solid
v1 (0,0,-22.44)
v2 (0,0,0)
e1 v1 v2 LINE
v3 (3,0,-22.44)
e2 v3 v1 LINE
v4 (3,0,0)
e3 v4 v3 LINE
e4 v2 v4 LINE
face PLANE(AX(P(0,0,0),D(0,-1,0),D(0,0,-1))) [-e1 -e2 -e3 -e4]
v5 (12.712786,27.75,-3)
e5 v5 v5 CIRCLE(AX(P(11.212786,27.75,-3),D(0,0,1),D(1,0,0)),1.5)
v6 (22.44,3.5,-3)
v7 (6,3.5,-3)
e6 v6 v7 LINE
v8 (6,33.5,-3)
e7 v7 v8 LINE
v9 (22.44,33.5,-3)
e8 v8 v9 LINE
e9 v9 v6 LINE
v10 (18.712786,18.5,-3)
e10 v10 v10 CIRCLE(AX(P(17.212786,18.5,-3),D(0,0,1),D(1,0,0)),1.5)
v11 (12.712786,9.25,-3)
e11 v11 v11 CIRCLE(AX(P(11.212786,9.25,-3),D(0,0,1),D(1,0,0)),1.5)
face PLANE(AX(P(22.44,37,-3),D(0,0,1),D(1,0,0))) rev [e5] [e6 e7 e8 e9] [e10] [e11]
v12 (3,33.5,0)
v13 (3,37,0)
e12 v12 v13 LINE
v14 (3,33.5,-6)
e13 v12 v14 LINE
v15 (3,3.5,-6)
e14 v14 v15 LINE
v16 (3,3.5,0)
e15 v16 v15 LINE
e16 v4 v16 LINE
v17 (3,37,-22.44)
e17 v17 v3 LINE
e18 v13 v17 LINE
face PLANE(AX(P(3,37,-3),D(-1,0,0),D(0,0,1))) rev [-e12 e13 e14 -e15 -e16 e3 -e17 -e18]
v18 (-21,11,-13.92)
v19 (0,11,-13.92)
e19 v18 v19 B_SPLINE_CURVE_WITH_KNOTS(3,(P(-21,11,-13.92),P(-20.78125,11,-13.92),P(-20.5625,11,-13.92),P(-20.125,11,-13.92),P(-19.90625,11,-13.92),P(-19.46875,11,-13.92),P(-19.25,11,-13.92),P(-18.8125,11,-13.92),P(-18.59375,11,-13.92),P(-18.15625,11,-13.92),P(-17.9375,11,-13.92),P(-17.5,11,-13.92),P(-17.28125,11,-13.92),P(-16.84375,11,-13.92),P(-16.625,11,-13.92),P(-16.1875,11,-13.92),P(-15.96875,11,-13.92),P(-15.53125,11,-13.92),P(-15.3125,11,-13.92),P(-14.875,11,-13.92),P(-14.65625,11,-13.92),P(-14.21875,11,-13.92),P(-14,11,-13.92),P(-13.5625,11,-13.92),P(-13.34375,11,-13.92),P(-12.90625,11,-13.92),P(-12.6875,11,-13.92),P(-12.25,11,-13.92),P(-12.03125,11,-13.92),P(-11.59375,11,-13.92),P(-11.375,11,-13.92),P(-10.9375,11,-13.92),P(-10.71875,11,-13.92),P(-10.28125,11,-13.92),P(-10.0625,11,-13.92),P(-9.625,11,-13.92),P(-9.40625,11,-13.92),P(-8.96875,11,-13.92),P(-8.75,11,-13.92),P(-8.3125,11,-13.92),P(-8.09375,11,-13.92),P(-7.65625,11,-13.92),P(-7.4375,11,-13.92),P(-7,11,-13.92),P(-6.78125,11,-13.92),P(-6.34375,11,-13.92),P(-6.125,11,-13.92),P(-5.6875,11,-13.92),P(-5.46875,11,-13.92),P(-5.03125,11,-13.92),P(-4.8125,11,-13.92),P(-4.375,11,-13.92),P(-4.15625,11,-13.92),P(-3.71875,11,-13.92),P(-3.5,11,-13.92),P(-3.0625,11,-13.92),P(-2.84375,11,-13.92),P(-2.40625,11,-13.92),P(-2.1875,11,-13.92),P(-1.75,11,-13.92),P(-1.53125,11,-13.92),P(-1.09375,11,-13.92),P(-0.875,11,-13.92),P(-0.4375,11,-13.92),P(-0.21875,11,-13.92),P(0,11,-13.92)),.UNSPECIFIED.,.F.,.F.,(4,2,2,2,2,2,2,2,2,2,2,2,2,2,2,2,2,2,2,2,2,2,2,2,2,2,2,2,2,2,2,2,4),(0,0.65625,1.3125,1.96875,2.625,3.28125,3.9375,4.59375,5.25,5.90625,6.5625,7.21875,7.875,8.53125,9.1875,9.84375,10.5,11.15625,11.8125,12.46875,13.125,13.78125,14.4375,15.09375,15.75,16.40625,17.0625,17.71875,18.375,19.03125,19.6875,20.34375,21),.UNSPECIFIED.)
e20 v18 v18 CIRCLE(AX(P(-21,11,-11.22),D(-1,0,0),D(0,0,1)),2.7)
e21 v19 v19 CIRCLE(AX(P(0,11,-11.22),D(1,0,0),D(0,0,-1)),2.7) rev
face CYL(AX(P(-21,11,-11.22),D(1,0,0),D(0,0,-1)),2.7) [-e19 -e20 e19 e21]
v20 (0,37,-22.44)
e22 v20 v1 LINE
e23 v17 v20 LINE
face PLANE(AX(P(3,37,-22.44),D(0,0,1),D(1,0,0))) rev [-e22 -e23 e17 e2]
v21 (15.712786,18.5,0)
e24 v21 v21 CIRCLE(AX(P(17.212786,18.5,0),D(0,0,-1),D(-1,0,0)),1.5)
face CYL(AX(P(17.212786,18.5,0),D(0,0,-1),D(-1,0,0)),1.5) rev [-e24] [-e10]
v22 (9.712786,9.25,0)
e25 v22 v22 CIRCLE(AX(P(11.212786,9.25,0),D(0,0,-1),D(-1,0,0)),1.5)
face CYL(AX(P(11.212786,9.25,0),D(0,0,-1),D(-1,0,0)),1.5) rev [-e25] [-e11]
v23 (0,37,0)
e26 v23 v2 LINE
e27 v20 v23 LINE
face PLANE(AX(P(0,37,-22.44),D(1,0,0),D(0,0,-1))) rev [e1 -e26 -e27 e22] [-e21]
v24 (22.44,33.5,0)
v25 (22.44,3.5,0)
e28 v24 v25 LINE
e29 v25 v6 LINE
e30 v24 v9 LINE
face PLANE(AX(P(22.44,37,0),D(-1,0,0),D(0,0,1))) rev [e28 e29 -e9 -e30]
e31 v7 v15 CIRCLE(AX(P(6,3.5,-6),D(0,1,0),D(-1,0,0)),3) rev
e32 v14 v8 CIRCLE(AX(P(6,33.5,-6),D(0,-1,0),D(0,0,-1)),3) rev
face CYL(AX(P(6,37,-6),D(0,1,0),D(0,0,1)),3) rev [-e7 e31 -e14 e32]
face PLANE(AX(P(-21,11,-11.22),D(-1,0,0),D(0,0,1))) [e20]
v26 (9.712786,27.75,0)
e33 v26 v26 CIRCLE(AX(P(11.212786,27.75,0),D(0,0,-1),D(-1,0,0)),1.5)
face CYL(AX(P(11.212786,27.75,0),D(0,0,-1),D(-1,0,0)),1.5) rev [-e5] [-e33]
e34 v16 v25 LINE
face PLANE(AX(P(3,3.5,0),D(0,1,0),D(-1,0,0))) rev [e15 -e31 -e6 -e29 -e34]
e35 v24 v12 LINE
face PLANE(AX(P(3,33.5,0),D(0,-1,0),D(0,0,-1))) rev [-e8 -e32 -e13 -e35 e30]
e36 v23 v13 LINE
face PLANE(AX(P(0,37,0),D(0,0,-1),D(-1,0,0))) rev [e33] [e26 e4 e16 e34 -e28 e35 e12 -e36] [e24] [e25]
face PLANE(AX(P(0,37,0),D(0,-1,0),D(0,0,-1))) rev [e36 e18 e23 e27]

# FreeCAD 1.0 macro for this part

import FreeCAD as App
import Part
import Sketcher

V = App.Vector


def edges_at(feature, points):
    """Names of the edges that pass closest to the given points."""
    edges = feature.Shape.Edges
    near = lambda p: min(range(len(edges)), key=lambda i: edges[i].distToShape(Part.Vertex(*p))[0])
    return sorted({f"Edge{near(p) + 1}" for p in points})

doc = App.newDocument("Part")
body = doc.addObject("PartDesign::Body", "Body")

# Sketch on XZ plane
sketch1 = body.newObject("Sketcher::SketchObject", "Sketch")
sketch1.AttachmentSupport = (doc.getObject("XZ_Plane"), [""])
sketch1.MapMode = "FlatFace"
sketch1.addGeometry(Part.LineSegment(V(0, 0, 0), V(22.4, 0, 0)), False)
sketch1.addGeometry(Part.LineSegment(V(22.4, 0, 0), V(22.4, -3, 0)), False)
sketch1.addGeometry(Part.LineSegment(V(22.4, -3, 0), V(3, -3, 0)), False)
sketch1.addGeometry(Part.LineSegment(V(3, -3, 0), V(3, -22.4, 0)), False)
sketch1.addGeometry(Part.LineSegment(V(3, -22.4, 0), V(0, -22.4, 0)), False)
sketch1.addGeometry(Part.LineSegment(V(0, -22.4, 0), V(0, 0, 0)), False)
sketch1.addConstraint(Sketcher.Constraint("Coincident", 0, 2, 1, 1))
sketch1.addConstraint(Sketcher.Constraint("Coincident", 1, 2, 2, 1))
sketch1.addConstraint(Sketcher.Constraint("Coincident", 2, 2, 3, 1))
sketch1.addConstraint(Sketcher.Constraint("Coincident", 3, 2, 4, 1))
sketch1.addConstraint(Sketcher.Constraint("Coincident", 4, 2, 5, 1))
sketch1.addConstraint(Sketcher.Constraint("Coincident", 5, 2, 0, 1))
sketch1.addConstraint(Sketcher.Constraint("Horizontal", 0))
sketch1.addConstraint(Sketcher.Constraint("Vertical", 1))
sketch1.addConstraint(Sketcher.Constraint("Horizontal", 2))
sketch1.addConstraint(Sketcher.Constraint("Vertical", 3))
sketch1.addConstraint(Sketcher.Constraint("Horizontal", 4))
sketch1.addConstraint(Sketcher.Constraint("Vertical", 5))
sketch1.addConstraint(Sketcher.Constraint("Coincident", 5, 2, -1, 1))
sketch1.addConstraint(Sketcher.Constraint("Equal", 4, 1))
sketch1.addConstraint(Sketcher.Constraint("Equal", 2, 3))
sketch1.addConstraint(Sketcher.Constraint("DistanceX", 4, 2, 4, 1, 3.0))
sketch1.addConstraint(Sketcher.Constraint("DistanceX", 0, 1, 0, 2, 22.44))
pad1 = body.newObject("PartDesign::Pad", "Pad")
pad1.Profile = sketch1
pad1.Length = 37
pad1.Reversed = True
doc.recompute()

fillet = body.newObject("PartDesign::Fillet", "Fillet")
fillet.Base = (pad1, edges_at(pad1, [(3, 18.5, -3)]))
fillet.Radius = 3

# Sketch on XY plane
sketch2 = body.newObject("Sketcher::SketchObject", "Sketch001")
sketch2.AttachmentSupport = (doc.getObject("XY_Plane"), [""])
sketch2.MapMode = "FlatFace"
sketch2.AttachmentOffset = App.Placement(V(0, 0, -22.44), App.Rotation())
sketch2.addGeometry(Part.Circle(V(11.2, 27.8, 0), V(0, 0, 1), 1.5), False)
sketch2.addGeometry(Part.Circle(V(17.2, 18.5, 0), V(0, 0, 1), 1.5), False)
sketch2.addGeometry(Part.Circle(V(11.2, 9.2, 0), V(0, 0, 1), 1.5), False)
sketch2.addGeometry(Part.LineSegment(V(22.4, 3.5, 0), V(22.4, 0, 0)), False)
sketch2.addGeometry(Part.LineSegment(V(22.4, 0, 0), V(3, 0, 0)), False)
sketch2.addGeometry(Part.LineSegment(V(3, 0, 0), V(3, 3.5, 0)), False)
sketch2.addGeometry(Part.LineSegment(V(3, 3.5, 0), V(22.4, 3.5, 0)), False)
sketch2.addGeometry(Part.LineSegment(V(22.4, 37, 0), V(22.4, 33.5, 0)), False)
sketch2.addGeometry(Part.LineSegment(V(22.4, 33.5, 0), V(3, 33.5, 0)), False)
sketch2.addGeometry(Part.LineSegment(V(3, 33.5, 0), V(3, 37, 0)), False)
sketch2.addGeometry(Part.LineSegment(V(3, 37, 0), V(22.4, 37, 0)), False)
sketch2.addConstraint(Sketcher.Constraint("Coincident", 3, 2, 4, 1))
sketch2.addConstraint(Sketcher.Constraint("Coincident", 4, 2, 5, 1))
sketch2.addConstraint(Sketcher.Constraint("Coincident", 5, 2, 6, 1))
sketch2.addConstraint(Sketcher.Constraint("Coincident", 6, 2, 3, 1))
sketch2.addConstraint(Sketcher.Constraint("Coincident", 7, 2, 8, 1))
sketch2.addConstraint(Sketcher.Constraint("Coincident", 8, 2, 9, 1))
sketch2.addConstraint(Sketcher.Constraint("Coincident", 9, 2, 10, 1))
sketch2.addConstraint(Sketcher.Constraint("Coincident", 10, 2, 7, 1))
sketch2.addConstraint(Sketcher.Constraint("Vertical", 3))
sketch2.addConstraint(Sketcher.Constraint("Horizontal", 4))
sketch2.addConstraint(Sketcher.Constraint("Vertical", 5))
sketch2.addConstraint(Sketcher.Constraint("Horizontal", 6))
sketch2.addConstraint(Sketcher.Constraint("Vertical", 7))
sketch2.addConstraint(Sketcher.Constraint("Horizontal", 8))
sketch2.addConstraint(Sketcher.Constraint("Vertical", 9))
sketch2.addConstraint(Sketcher.Constraint("Horizontal", 10))
sketch2.addConstraint(Sketcher.Constraint("Equal", 0, 1))
sketch2.addConstraint(Sketcher.Constraint("Equal", 1, 2))
sketch2.addConstraint(Sketcher.Constraint("PointOnObject", 3, 2, -1))
sketch2.addConstraint(Sketcher.Constraint("Vertical", 0, 3, 2, 3))
sketch2.addConstraint(Sketcher.Constraint("Vertical", 6, 2, 7, 2))
sketch2.addConstraint(Sketcher.Constraint("Vertical", 5, 2, 8, 2))
sketch2.addConstraint(Sketcher.Constraint("Equal", 5, 7))
sketch2.addConstraint(Sketcher.Constraint("Diameter", 0, 3.0))
sketch2.addConstraint(Sketcher.Constraint("DistanceY", 3, 2, 3, 1, 3.5))
sketch2.addConstraint(Sketcher.Constraint("DistanceX", -1, 1, 4, 2, 3.0))
sketch2.addConstraint(Sketcher.Constraint("DistanceY", -1, 1, 9, 2, 37.0))
sketch2.addConstraint(Sketcher.Constraint("DistanceX", 0, 3, 1, 3, 6.0))
sketch2.addConstraint(Sketcher.Constraint("DistanceY", 5, 2, 1, 3, 15.0))
sketch2.addConstraint(Sketcher.Constraint("DistanceX", 4, 2, 4, 1, 19.44))
sketch2.addConstraint(Sketcher.Constraint("DistanceY", 2, 3, 0, 3, 18.5))
sketch2.addConstraint(Sketcher.Constraint("DistanceY", -1, 1, 0, 3, 27.75))
sketch2.addConstraint(Sketcher.Constraint("DistanceX", -1, 1, 0, 3, 11.212786))
pocket1 = body.newObject("PartDesign::Pocket", "Pocket")
pocket1.Profile = sketch2
pocket1.Type = "ThroughAll"
pocket1.Reversed = True

# Sketch on YZ plane
sketch3 = body.newObject("Sketcher::SketchObject", "Sketch002")
sketch3.AttachmentSupport = (doc.getObject("YZ_Plane"), [""])
sketch3.MapMode = "FlatFace"
sketch3.addGeometry(Part.Circle(V(11, -11.2, 0), V(0, 0, 1), 2.7), False)
sketch3.addConstraint(Sketcher.Constraint("Diameter", 0, 5.4))
sketch3.addConstraint(Sketcher.Constraint("DistanceX", -1, 1, 0, 3, 11.0))
sketch3.addConstraint(Sketcher.Constraint("DistanceY", 0, 3, -1, 1, 11.22))
pad2 = body.newObject("PartDesign::Pad", "Pad001")
pad2.Profile = sketch3
pad2.Length = 21
pad2.Reversed = True

doc.recompute()
